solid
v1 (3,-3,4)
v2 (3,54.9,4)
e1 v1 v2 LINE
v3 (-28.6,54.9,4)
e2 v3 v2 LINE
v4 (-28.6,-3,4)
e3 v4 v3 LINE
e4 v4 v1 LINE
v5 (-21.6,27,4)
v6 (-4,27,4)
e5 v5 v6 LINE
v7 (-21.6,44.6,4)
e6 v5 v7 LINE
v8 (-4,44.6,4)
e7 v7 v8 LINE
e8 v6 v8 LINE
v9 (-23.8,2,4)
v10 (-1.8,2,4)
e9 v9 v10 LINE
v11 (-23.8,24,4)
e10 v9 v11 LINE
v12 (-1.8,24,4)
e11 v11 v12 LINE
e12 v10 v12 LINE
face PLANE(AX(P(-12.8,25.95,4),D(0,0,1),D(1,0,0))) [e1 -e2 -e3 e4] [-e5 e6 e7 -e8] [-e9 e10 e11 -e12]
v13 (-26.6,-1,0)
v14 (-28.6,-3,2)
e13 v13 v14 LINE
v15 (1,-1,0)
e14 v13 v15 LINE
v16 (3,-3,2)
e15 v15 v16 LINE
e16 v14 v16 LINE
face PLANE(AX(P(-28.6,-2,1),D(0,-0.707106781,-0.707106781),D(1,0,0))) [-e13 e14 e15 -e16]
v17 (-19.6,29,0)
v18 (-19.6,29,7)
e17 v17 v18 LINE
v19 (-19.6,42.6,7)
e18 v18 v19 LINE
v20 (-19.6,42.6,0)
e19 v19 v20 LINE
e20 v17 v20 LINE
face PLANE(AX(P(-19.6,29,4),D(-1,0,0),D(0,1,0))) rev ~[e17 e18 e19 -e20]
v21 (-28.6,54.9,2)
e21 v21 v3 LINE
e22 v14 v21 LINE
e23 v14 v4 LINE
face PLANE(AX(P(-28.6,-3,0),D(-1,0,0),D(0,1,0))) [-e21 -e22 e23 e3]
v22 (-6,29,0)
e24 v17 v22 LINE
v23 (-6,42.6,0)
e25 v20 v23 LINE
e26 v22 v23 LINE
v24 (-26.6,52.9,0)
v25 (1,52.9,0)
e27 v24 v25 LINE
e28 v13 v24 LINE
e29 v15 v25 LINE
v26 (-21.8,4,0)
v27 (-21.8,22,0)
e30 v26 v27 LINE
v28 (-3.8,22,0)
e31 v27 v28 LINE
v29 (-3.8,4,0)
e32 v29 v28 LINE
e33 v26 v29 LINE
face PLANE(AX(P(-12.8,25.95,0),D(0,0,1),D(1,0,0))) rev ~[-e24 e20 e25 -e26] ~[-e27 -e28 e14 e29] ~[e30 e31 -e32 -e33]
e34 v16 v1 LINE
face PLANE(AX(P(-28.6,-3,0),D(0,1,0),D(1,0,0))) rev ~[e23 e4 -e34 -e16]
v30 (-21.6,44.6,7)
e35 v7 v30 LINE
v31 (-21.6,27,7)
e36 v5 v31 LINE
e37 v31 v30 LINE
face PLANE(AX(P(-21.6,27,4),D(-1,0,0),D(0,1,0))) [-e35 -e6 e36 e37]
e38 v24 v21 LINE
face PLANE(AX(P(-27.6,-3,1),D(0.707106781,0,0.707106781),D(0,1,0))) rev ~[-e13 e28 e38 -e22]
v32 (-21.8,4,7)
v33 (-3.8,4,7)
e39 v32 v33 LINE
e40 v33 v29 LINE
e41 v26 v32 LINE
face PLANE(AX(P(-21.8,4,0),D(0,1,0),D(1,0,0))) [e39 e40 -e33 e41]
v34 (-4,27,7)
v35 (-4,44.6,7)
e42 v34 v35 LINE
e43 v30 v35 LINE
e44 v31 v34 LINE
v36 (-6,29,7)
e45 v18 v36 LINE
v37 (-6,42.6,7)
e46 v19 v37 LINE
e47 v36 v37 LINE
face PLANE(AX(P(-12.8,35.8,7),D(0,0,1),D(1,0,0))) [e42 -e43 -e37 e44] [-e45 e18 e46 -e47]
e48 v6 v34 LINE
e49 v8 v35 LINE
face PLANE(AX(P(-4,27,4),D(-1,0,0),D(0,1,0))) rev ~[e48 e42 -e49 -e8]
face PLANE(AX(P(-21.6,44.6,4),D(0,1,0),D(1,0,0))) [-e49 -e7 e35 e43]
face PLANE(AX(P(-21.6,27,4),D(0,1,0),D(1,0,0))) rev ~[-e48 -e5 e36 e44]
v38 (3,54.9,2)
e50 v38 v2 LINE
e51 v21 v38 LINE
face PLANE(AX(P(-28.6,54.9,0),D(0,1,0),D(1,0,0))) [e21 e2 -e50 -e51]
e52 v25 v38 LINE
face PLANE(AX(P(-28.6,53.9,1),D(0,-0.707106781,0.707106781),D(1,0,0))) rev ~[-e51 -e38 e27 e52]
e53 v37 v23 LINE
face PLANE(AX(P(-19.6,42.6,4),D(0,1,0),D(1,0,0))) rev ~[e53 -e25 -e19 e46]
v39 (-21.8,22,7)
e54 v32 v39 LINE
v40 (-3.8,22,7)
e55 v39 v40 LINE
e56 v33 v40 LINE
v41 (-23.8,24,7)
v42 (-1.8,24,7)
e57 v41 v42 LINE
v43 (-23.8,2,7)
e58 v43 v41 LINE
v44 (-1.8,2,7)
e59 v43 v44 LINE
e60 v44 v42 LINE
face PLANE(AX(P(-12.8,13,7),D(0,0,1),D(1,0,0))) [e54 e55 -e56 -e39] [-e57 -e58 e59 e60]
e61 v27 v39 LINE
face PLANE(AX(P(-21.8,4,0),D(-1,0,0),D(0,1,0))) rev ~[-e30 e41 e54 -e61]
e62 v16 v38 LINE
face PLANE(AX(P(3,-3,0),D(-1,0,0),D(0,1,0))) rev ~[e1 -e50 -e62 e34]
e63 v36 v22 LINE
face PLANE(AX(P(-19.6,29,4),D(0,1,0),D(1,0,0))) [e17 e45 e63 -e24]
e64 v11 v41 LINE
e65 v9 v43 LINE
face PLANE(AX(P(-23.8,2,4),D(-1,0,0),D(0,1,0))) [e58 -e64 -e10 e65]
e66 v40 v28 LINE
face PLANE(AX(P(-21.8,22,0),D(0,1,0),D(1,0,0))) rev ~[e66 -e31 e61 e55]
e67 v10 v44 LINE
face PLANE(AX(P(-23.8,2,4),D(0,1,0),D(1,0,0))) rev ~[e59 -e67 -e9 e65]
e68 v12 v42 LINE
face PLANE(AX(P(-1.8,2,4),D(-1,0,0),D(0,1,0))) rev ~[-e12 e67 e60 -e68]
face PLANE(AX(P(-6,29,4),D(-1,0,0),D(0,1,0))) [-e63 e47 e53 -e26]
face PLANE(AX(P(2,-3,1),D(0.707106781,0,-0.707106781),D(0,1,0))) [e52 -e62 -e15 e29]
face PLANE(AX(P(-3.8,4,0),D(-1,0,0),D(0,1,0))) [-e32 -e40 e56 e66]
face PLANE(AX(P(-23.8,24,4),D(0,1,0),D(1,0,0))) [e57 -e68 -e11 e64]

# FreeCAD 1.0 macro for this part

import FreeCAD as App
import Part
import Sketcher

V = App.Vector
Q = App.Units.Quantity


def edges_at(feature, points):
    """Names of the edges that pass closest to the given points."""
    edges = feature.Shape.Edges
    near = lambda p: min(range(len(edges)), key=lambda i: edges[i].distToShape(Part.Vertex(*p))[0])
    return sorted({f"Edge{near(p) + 1}" for p in points})

doc = App.newDocument("Part")
body = doc.addObject("PartDesign::Body", "Body")

sketch1 = body.newObject("Sketcher::SketchObject", "Sketch")
sketch1.AttachmentSupport = (doc.getObject("XY_Plane"), [""])
sketch1.MapMode = "FlatFace"
sketch1.addGeometry([
    Part.LineSegment(V(-29, 55, 0), V(-29, -3, 0)),
    Part.LineSegment(V(-29, -3, 0), V(3, -3, 0)),
    Part.LineSegment(V(3, -3, 0), V(3, 55, 0)),
    Part.LineSegment(V(3, 55, 0), V(-29, 55, 0)),
    Part.LineSegment(V(-4, 4, 0), V(-22, 4, 0)),
    Part.LineSegment(V(-22, 4, 0), V(-22, 22, 0)),
    Part.LineSegment(V(-22, 22, 0), V(-4, 22, 0)),
    Part.LineSegment(V(-4, 22, 0), V(-4, 4, 0)),
    Part.LineSegment(V(-6, 29, 0), V(-20, 29, 0)),
    Part.LineSegment(V(-20, 29, 0), V(-20, 43, 0)),
    Part.LineSegment(V(-20, 43, 0), V(-6, 43, 0)),
    Part.LineSegment(V(-6, 43, 0), V(-6, 29, 0)),
], False)
sketch1.addConstraint([
    Sketcher.Constraint("Coincident", 0, 2, 1, 1),
    Sketcher.Constraint("Coincident", 1, 2, 2, 1),
    Sketcher.Constraint("Coincident", 2, 2, 3, 1),
    Sketcher.Constraint("Coincident", 3, 2, 0, 1),
    Sketcher.Constraint("Coincident", 4, 2, 5, 1),
    Sketcher.Constraint("Coincident", 5, 2, 6, 1),
    Sketcher.Constraint("Coincident", 6, 2, 7, 1),
    Sketcher.Constraint("Coincident", 7, 2, 4, 1),
    Sketcher.Constraint("Coincident", 8, 2, 9, 1),
    Sketcher.Constraint("Coincident", 9, 2, 10, 1),
    Sketcher.Constraint("Coincident", 10, 2, 11, 1),
    Sketcher.Constraint("Coincident", 11, 2, 8, 1),
    Sketcher.Constraint("Vertical", 0),
    Sketcher.Constraint("Horizontal", 1),
    Sketcher.Constraint("Vertical", 2),
    Sketcher.Constraint("Horizontal", 3),
    Sketcher.Constraint("Horizontal", 4),
    Sketcher.Constraint("Vertical", 5),
    Sketcher.Constraint("Horizontal", 6),
    Sketcher.Constraint("Vertical", 7),
    Sketcher.Constraint("Horizontal", 8),
    Sketcher.Constraint("Vertical", 9),
    Sketcher.Constraint("Horizontal", 10),
    Sketcher.Constraint("Vertical", 11),
    Sketcher.Constraint("Equal", 6, 5),
    Sketcher.Constraint("Equal", 10, 9),
    Sketcher.Constraint("DistanceX", 4, 2, 4, 1, Q("18 mm")),
    Sketcher.Constraint("DistanceX", 1, 1, 1, 2, Q("31.6 mm")),
    Sketcher.Constraint("DistanceX", 8, 2, 8, 1, Q("13.6 mm")),
    Sketcher.Constraint("DistanceY", 0, 2, 0, 1, Q("57.9 mm")),
    Sketcher.Constraint("DistanceY", 0, 2, -1, 1, Q("3 mm")),
    Sketcher.Constraint("DistanceX", -1, 1, 1, 2, Q("3 mm")),
    Sketcher.Constraint("DistanceY", -1, 1, 4, 2, Q("4 mm")),
    Sketcher.Constraint("DistanceY", -1, 1, 8, 2, Q("29 mm")),
    Sketcher.Constraint("DistanceX", 10, 2, -1, 1, Q("6 mm")),
    Sketcher.Constraint("DistanceX", 4, 2, -1, 1, Q("21.8 mm")),
])
pad1 = body.newObject("PartDesign::Pad", "Pad")
pad1.Profile = sketch1
pad1.Length = 4

sketch2 = body.newObject("Sketcher::SketchObject", "Sketch001")
sketch2.AttachmentSupport = (doc.getObject("XY_Plane"), [""])
sketch2.MapMode = "FlatFace"
sketch2.AttachmentOffset = App.Placement(V(0, 0, 4), App.Rotation())
sketch2.addGeometry([
    Part.LineSegment(V(-22, 45, 0), V(-22, 27, 0)),
    Part.LineSegment(V(-22, 27, 0), V(-4, 27, 0)),
    Part.LineSegment(V(-4, 27, 0), V(-4, 45, 0)),
    Part.LineSegment(V(-4, 45, 0), V(-22, 45, 0)),
    Part.LineSegment(V(-6, 29, 0), V(-20, 29, 0)),
    Part.LineSegment(V(-20, 29, 0), V(-20, 43, 0)),
    Part.LineSegment(V(-20, 43, 0), V(-6, 43, 0)),
    Part.LineSegment(V(-6, 43, 0), V(-6, 29, 0)),
    Part.LineSegment(V(-24, 24, 0), V(-24, 2, 0)),
    Part.LineSegment(V(-24, 2, 0), V(-2, 2, 0)),
    Part.LineSegment(V(-2, 2, 0), V(-2, 24, 0)),
    Part.LineSegment(V(-2, 24, 0), V(-24, 24, 0)),
    Part.LineSegment(V(-4, 4, 0), V(-22, 4, 0)),
    Part.LineSegment(V(-22, 4, 0), V(-22, 22, 0)),
    Part.LineSegment(V(-22, 22, 0), V(-4, 22, 0)),
    Part.LineSegment(V(-4, 22, 0), V(-4, 4, 0)),
], False)
sketch2.addConstraint([
    Sketcher.Constraint("Coincident", 0, 2, 1, 1),
    Sketcher.Constraint("Coincident", 1, 2, 2, 1),
    Sketcher.Constraint("Coincident", 2, 2, 3, 1),
    Sketcher.Constraint("Coincident", 3, 2, 0, 1),
    Sketcher.Constraint("Coincident", 4, 2, 5, 1),
    Sketcher.Constraint("Coincident", 5, 2, 6, 1),
    Sketcher.Constraint("Coincident", 6, 2, 7, 1),
    Sketcher.Constraint("Coincident", 7, 2, 4, 1),
    Sketcher.Constraint("Coincident", 8, 2, 9, 1),
    Sketcher.Constraint("Coincident", 9, 2, 10, 1),
    Sketcher.Constraint("Coincident", 10, 2, 11, 1),
    Sketcher.Constraint("Coincident", 11, 2, 8, 1),
    Sketcher.Constraint("Coincident", 12, 2, 13, 1),
    Sketcher.Constraint("Coincident", 13, 2, 14, 1),
    Sketcher.Constraint("Coincident", 14, 2, 15, 1),
    Sketcher.Constraint("Coincident", 15, 2, 12, 1),
    Sketcher.Constraint("Vertical", 0),
    Sketcher.Constraint("Horizontal", 1),
    Sketcher.Constraint("Vertical", 2),
    Sketcher.Constraint("Horizontal", 3),
    Sketcher.Constraint("Horizontal", 4),
    Sketcher.Constraint("Vertical", 5),
    Sketcher.Constraint("Horizontal", 6),
    Sketcher.Constraint("Vertical", 7),
    Sketcher.Constraint("Vertical", 8),
    Sketcher.Constraint("Horizontal", 9),
    Sketcher.Constraint("Vertical", 10),
    Sketcher.Constraint("Horizontal", 11),
    Sketcher.Constraint("Horizontal", 12),
    Sketcher.Constraint("Vertical", 13),
    Sketcher.Constraint("Horizontal", 14),
    Sketcher.Constraint("Vertical", 15),
    Sketcher.Constraint("Equal", 3, 0),
    Sketcher.Constraint("Equal", 6, 5),
    Sketcher.Constraint("Equal", 11, 8),
    Sketcher.Constraint("Equal", 14, 13),
    Sketcher.Constraint("DistanceX", 9, 1, 9, 2, Q("22 mm")),
    Sketcher.Constraint("DistanceX", 12, 2, 12, 1, Q("18 mm")),
    Sketcher.Constraint("DistanceX", 1, 1, 1, 2, Q("17.6 mm")),
    Sketcher.Constraint("DistanceX", 4, 2, 4, 1, Q("13.6 mm")),
    Sketcher.Constraint("DistanceY", -1, 1, 0, 2, Q("27 mm")),
    Sketcher.Constraint("DistanceX", 1, 2, -1, 1, Q("4 mm")),
    Sketcher.Constraint("DistanceY", -1, 1, 4, 2, Q("29 mm")),
    Sketcher.Constraint("DistanceX", 6, 2, -1, 1, Q("6 mm")),
    Sketcher.Constraint("DistanceY", -1, 1, 8, 2, Q("2 mm")),
    Sketcher.Constraint("DistanceY", -1, 1, 12, 2, Q("4 mm")),
    Sketcher.Constraint("DistanceX", 8, 2, 12, 2, Q("2 mm")),
    Sketcher.Constraint("DistanceX", 8, 2, -1, 1, Q("23.8 mm")),
])
pad2 = body.newObject("PartDesign::Pad", "Pad001")
pad2.Profile = sketch2
pad2.Length = 3
doc.recompute()

chamfer = body.newObject("PartDesign::Chamfer", "Chamfer")
chamfer.Base = (pad2, edges_at(pad2, [
    (-28.6, 25.95, 0),
    (-12.8, -3, 0),
    (3, 25.95, 0),
    (-12.8, 54.9, 0),
]))
chamfer.Size = 2

doc.recompute()
